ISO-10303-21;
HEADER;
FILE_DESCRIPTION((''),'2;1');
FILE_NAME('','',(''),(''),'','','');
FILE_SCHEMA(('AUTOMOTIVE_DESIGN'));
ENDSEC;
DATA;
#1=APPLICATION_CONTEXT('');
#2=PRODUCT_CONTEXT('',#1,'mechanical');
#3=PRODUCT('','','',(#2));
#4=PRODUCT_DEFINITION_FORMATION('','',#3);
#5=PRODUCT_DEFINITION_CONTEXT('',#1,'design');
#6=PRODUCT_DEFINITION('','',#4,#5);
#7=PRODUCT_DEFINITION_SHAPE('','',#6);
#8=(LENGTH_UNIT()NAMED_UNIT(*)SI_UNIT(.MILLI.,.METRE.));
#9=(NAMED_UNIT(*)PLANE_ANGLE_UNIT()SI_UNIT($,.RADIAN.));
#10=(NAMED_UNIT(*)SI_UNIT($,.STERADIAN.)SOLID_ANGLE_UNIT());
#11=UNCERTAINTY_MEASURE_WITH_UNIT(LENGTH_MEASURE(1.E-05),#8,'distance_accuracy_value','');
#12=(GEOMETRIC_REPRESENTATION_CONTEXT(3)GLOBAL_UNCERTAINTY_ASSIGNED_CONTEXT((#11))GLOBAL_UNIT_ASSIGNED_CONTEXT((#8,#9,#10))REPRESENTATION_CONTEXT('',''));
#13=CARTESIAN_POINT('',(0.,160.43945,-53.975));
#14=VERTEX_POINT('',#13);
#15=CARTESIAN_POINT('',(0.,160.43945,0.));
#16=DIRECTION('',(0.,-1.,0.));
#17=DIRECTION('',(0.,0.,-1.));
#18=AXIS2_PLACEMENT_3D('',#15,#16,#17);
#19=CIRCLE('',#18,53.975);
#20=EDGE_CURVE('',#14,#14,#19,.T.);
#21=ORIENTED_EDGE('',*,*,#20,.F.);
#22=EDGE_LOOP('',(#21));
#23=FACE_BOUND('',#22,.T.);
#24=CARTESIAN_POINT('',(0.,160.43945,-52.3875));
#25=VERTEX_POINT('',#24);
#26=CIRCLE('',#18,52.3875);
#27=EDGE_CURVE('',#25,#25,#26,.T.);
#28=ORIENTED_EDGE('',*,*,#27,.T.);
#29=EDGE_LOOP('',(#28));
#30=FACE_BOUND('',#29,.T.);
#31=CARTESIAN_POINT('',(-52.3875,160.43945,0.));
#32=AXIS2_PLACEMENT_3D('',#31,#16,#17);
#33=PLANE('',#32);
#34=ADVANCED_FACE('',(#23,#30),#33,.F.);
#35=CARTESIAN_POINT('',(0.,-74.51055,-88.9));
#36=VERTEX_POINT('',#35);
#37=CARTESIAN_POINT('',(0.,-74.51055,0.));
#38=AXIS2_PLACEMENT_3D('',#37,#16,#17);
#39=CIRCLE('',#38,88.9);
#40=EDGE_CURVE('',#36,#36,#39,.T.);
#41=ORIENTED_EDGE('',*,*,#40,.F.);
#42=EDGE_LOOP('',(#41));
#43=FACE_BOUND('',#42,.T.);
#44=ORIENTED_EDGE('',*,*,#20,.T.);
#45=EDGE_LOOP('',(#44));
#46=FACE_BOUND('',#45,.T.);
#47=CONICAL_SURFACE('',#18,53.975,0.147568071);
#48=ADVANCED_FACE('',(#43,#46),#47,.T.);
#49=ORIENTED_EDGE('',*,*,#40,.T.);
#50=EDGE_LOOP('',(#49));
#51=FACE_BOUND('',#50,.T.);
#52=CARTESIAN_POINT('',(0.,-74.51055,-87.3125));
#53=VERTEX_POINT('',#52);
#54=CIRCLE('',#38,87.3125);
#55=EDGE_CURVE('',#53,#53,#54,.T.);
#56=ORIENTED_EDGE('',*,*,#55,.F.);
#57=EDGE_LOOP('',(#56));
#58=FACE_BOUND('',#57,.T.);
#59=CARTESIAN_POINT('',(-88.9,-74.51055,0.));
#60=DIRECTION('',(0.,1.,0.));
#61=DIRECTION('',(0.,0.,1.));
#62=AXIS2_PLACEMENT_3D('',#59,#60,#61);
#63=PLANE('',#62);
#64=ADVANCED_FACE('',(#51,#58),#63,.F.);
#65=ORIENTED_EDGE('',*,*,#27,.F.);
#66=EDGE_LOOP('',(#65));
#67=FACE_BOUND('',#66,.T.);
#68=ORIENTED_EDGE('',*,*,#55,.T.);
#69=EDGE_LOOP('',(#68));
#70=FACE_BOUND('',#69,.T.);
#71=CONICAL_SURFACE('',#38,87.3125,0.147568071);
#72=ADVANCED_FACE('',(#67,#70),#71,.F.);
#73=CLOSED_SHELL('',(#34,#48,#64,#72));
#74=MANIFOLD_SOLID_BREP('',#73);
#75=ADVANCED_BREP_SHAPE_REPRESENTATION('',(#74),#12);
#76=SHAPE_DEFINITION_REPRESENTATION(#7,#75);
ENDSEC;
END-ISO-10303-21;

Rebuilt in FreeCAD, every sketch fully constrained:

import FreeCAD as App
import Part
import Sketcher
from FreeCAD import Vector
Q = App.Units.Quantity

doc = App.newDocument("Part")
body = doc.addObject("PartDesign::Body", "Body")

# Sketch on XY plane
sketch1 = body.newObject("Sketcher::SketchObject", "Sketch")
sketch1.AttachmentSupport = (doc.getObject("XY_Plane"), [""])
sketch1.MapMode = "FlatFace"
sketch1.addGeometry([
    Part.LineSegment(Vector(-87.3, -74.5, 0), Vector(-52.4, 160.4, 0)),
    Part.LineSegment(Vector(-52.4, 160.4, 0), Vector(-54, 160.4, 0)),
    Part.LineSegment(Vector(-54, 160.4, 0), Vector(-88.9, -74.5, 0)),
    Part.LineSegment(Vector(-88.9, -74.5, 0), Vector(-87.3, -74.5, 0)),
], False)
sketch1.addConstraint([
    Sketcher.Constraint("Coincident", 0, 2, 1, 1),
    Sketcher.Constraint("Coincident", 1, 2, 2, 1),
    Sketcher.Constraint("Coincident", 2, 2, 3, 1),
    Sketcher.Constraint("Coincident", 3, 2, 0, 1),
    Sketcher.Constraint("Horizontal", 1),
    Sketcher.Constraint("Horizontal", 3),
    Sketcher.Constraint("Parallel", 0, 2),
    Sketcher.Constraint("DistanceX", 2, 2, -1, 1, Q("3.5 in")),
    Sketcher.Constraint("DistanceX", 1, 2, 1, 1, Q("0.0625 in")),
    Sketcher.Constraint("DistanceY", 2, 2, 1, 2, Q("9.25 in")),
    Sketcher.Constraint("DistanceX", 0, 2, -1, 1, Q("2.0625 in")),
    Sketcher.Constraint("DistanceY", -1, 1, 0, 2, 160.43945),
])
revolution = body.newObject("PartDesign::Revolution", "Revolution")
revolution.Profile = sketch1
revolution.ReferenceAxis = (sketch1, ["V_Axis"])
revolution.Angle = 360

doc.recompute()
